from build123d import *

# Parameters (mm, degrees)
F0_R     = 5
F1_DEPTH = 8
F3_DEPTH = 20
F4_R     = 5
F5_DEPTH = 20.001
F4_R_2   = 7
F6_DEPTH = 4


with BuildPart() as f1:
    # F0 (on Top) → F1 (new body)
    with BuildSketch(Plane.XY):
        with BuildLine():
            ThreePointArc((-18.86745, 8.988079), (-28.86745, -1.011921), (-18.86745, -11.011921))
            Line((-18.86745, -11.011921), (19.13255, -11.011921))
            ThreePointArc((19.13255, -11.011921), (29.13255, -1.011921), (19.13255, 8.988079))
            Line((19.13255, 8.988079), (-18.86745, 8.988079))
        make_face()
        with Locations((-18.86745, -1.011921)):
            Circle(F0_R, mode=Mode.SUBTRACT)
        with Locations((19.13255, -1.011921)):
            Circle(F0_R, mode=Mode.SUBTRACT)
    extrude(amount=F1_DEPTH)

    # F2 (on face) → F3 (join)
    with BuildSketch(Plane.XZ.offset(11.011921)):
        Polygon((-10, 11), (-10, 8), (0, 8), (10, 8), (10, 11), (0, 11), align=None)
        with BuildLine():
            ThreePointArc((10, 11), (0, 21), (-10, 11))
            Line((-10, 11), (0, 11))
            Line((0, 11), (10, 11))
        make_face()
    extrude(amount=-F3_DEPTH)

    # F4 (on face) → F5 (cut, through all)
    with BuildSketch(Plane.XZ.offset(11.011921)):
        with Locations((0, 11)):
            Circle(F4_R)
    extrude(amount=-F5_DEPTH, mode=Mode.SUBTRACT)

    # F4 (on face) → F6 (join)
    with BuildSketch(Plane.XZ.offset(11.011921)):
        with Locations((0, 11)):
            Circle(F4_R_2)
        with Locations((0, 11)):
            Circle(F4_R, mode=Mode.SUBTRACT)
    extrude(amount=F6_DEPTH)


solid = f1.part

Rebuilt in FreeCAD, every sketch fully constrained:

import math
import FreeCAD as App
import Part
import Sketcher
Q = App.Units.Quantity

doc = App.newDocument("Part")
body = doc.addObject("PartDesign::Body", "Body")

sketch1 = body.newObject("Sketcher::SketchObject", "Sketch")
sketch1.AttachmentSupport = (doc.getObject("XY_Plane"), [""])
sketch1.MapMode = "FlatFace"
sketch1.addGeometry(Part.ArcOfCircle(Part.Circle(App.Vector(-19, -1, 0), App.Vector(0, 0, 1), 10), math.radians(90), math.radians(270)), False)
sketch1.addGeometry(Part.LineSegment(App.Vector(-19, -11, 0), App.Vector(19, -11, 0)), False)
sketch1.addGeometry(Part.ArcOfCircle(Part.Circle(App.Vector(19, -1, 0), App.Vector(0, 0, 1), 10), math.radians(-90), math.radians(90)), False)
sketch1.addGeometry(Part.LineSegment(App.Vector(19, 9, 0), App.Vector(-19, 9, 0)), False)
sketch1.addGeometry(Part.Circle(App.Vector(-19, -1, 0), App.Vector(0, 0, 1), 5), False)
sketch1.addGeometry(Part.Circle(App.Vector(19, -1, 0), App.Vector(0, 0, 1), 5), False)
sketch1.addConstraint(Sketcher.Constraint("Tangent", 0, 2, 1, 1))
sketch1.addConstraint(Sketcher.Constraint("Tangent", 1, 2, 2, 1))
sketch1.addConstraint(Sketcher.Constraint("Tangent", 2, 2, 3, 1))
sketch1.addConstraint(Sketcher.Constraint("Tangent", 3, 2, 0, 1))
sketch1.addConstraint(Sketcher.Constraint("Horizontal", 1))
sketch1.addConstraint(Sketcher.Constraint("Horizontal", 3))
sketch1.addConstraint(Sketcher.Constraint("Coincident", 4, 3, 0, 3))
sketch1.addConstraint(Sketcher.Constraint("Coincident", 5, 3, 2, 3))
sketch1.addConstraint(Sketcher.Constraint("Equal", 4, 5))
sketch1.addConstraint(Sketcher.Constraint("Diameter", 4, Q("10 mm")))
sketch1.addConstraint(Sketcher.Constraint("Radius", 0, Q("10 mm")))
sketch1.addConstraint(Sketcher.Constraint("DistanceX", 1, 1, 1, 2, Q("38 mm")))
sketch1.addConstraint(Sketcher.Constraint("DistanceX", 0, 3, -1, 1, Q("18.86745 mm")))
sketch1.addConstraint(Sketcher.Constraint("DistanceY", 0, 3, -1, 1, Q("1.011921 mm")))
pad1 = body.newObject("PartDesign::Pad", "Pad")
pad1.Profile = sketch1
pad1.Length = 8

sketch2 = body.newObject("Sketcher::SketchObject", "Sketch001")
sketch2.AttachmentSupport = (doc.getObject("XZ_Plane"), [""])
sketch2.MapMode = "FlatFace"
sketch2.AttachmentOffset = App.Placement(App.Vector(0, 0, 11.011921), App.Rotation())
sketch2.addGeometry(Part.LineSegment(App.Vector(-10, 11, 0), App.Vector(-10, 8, 0)), False)
sketch2.addGeometry(Part.LineSegment(App.Vector(-10, 8, 0), App.Vector(10, 8, 0)), False)
sketch2.addGeometry(Part.LineSegment(App.Vector(10, 8, 0), App.Vector(10, 11, 0)), False)
sketch2.addGeometry(Part.ArcOfCircle(Part.Circle(App.Vector(0, 11, 0), App.Vector(0, 0, 1), 10), math.radians(0), math.radians(180)), False)
sketch2.addConstraint(Sketcher.Constraint("Coincident", 0, 2, 1, 1))
sketch2.addConstraint(Sketcher.Constraint("Coincident", 1, 2, 2, 1))
sketch2.addConstraint(Sketcher.Constraint("Tangent", 2, 2, 3, 1))
sketch2.addConstraint(Sketcher.Constraint("Tangent", 3, 2, 0, 1))
sketch2.addConstraint(Sketcher.Constraint("Vertical", 0))
sketch2.addConstraint(Sketcher.Constraint("Horizontal", 1))
sketch2.addConstraint(Sketcher.Constraint("Vertical", 2))
sketch2.addConstraint(Sketcher.Constraint("PointOnObject", 3, 3, -2))
sketch2.addConstraint(Sketcher.Constraint("Radius", 3, Q("10 mm")))
sketch2.addConstraint(Sketcher.Constraint("DistanceY", 0, 2, 0, 1, Q("3 mm")))
sketch2.addConstraint(Sketcher.Constraint("DistanceY", -1, 1, 3, 3, Q("11 mm")))
pad2 = body.newObject("PartDesign::Pad", "Pad001")
pad2.Profile = sketch2
pad2.Length = 20
pad2.Reversed = True

sketch3 = body.newObject("Sketcher::SketchObject", "Sketch002")
sketch3.AttachmentSupport = (doc.getObject("XZ_Plane"), [""])
sketch3.MapMode = "FlatFace"
sketch3.AttachmentOffset = App.Placement(App.Vector(0, 0, 11.011921), App.Rotation())
sketch3.addGeometry(Part.Circle(App.Vector(0, 11, 0), App.Vector(0, 0, 1), 5), False)
sketch3.addConstraint(Sketcher.Constraint("PointOnObject", 0, 3, -2))
sketch3.addConstraint(Sketcher.Constraint("Diameter", 0, Q("10 mm")))
sketch3.addConstraint(Sketcher.Constraint("DistanceY", -1, 1, 0, 3, Q("11 mm")))
pocket1 = body.newObject("PartDesign::Pocket", "Pocket")
pocket1.Profile = sketch3
pocket1.Type = "ThroughAll"

sketch4 = body.newObject("Sketcher::SketchObject", "Sketch003")
sketch4.AttachmentSupport = (doc.getObject("XZ_Plane"), [""])
sketch4.MapMode = "FlatFace"
sketch4.AttachmentOffset = App.Placement(App.Vector(0, 0, 11.011921), App.Rotation())
sketch4.addGeometry(Part.Circle(App.Vector(0, 11, 0), App.Vector(0, 0, 1), 7), False)
sketch4.addGeometry(Part.Circle(App.Vector(0, 11, 0), App.Vector(0, 0, 1), 5), False)
sketch4.addConstraint(Sketcher.Constraint("Coincident", 1, 3, 0, 3))
sketch4.addConstraint(Sketcher.Constraint("PointOnObject", 0, 3, -2))
sketch4.addConstraint(Sketcher.Constraint("Diameter", 0, Q("14 mm")))
sketch4.addConstraint(Sketcher.Constraint("Diameter", 1, Q("10 mm")))
sketch4.addConstraint(Sketcher.Constraint("DistanceY", -1, 1, 0, 3, Q("11 mm")))
pad3 = body.newObject("PartDesign::Pad", "Pad002")
pad3.Profile = sketch4
pad3.Length = 4

doc.recompute()
